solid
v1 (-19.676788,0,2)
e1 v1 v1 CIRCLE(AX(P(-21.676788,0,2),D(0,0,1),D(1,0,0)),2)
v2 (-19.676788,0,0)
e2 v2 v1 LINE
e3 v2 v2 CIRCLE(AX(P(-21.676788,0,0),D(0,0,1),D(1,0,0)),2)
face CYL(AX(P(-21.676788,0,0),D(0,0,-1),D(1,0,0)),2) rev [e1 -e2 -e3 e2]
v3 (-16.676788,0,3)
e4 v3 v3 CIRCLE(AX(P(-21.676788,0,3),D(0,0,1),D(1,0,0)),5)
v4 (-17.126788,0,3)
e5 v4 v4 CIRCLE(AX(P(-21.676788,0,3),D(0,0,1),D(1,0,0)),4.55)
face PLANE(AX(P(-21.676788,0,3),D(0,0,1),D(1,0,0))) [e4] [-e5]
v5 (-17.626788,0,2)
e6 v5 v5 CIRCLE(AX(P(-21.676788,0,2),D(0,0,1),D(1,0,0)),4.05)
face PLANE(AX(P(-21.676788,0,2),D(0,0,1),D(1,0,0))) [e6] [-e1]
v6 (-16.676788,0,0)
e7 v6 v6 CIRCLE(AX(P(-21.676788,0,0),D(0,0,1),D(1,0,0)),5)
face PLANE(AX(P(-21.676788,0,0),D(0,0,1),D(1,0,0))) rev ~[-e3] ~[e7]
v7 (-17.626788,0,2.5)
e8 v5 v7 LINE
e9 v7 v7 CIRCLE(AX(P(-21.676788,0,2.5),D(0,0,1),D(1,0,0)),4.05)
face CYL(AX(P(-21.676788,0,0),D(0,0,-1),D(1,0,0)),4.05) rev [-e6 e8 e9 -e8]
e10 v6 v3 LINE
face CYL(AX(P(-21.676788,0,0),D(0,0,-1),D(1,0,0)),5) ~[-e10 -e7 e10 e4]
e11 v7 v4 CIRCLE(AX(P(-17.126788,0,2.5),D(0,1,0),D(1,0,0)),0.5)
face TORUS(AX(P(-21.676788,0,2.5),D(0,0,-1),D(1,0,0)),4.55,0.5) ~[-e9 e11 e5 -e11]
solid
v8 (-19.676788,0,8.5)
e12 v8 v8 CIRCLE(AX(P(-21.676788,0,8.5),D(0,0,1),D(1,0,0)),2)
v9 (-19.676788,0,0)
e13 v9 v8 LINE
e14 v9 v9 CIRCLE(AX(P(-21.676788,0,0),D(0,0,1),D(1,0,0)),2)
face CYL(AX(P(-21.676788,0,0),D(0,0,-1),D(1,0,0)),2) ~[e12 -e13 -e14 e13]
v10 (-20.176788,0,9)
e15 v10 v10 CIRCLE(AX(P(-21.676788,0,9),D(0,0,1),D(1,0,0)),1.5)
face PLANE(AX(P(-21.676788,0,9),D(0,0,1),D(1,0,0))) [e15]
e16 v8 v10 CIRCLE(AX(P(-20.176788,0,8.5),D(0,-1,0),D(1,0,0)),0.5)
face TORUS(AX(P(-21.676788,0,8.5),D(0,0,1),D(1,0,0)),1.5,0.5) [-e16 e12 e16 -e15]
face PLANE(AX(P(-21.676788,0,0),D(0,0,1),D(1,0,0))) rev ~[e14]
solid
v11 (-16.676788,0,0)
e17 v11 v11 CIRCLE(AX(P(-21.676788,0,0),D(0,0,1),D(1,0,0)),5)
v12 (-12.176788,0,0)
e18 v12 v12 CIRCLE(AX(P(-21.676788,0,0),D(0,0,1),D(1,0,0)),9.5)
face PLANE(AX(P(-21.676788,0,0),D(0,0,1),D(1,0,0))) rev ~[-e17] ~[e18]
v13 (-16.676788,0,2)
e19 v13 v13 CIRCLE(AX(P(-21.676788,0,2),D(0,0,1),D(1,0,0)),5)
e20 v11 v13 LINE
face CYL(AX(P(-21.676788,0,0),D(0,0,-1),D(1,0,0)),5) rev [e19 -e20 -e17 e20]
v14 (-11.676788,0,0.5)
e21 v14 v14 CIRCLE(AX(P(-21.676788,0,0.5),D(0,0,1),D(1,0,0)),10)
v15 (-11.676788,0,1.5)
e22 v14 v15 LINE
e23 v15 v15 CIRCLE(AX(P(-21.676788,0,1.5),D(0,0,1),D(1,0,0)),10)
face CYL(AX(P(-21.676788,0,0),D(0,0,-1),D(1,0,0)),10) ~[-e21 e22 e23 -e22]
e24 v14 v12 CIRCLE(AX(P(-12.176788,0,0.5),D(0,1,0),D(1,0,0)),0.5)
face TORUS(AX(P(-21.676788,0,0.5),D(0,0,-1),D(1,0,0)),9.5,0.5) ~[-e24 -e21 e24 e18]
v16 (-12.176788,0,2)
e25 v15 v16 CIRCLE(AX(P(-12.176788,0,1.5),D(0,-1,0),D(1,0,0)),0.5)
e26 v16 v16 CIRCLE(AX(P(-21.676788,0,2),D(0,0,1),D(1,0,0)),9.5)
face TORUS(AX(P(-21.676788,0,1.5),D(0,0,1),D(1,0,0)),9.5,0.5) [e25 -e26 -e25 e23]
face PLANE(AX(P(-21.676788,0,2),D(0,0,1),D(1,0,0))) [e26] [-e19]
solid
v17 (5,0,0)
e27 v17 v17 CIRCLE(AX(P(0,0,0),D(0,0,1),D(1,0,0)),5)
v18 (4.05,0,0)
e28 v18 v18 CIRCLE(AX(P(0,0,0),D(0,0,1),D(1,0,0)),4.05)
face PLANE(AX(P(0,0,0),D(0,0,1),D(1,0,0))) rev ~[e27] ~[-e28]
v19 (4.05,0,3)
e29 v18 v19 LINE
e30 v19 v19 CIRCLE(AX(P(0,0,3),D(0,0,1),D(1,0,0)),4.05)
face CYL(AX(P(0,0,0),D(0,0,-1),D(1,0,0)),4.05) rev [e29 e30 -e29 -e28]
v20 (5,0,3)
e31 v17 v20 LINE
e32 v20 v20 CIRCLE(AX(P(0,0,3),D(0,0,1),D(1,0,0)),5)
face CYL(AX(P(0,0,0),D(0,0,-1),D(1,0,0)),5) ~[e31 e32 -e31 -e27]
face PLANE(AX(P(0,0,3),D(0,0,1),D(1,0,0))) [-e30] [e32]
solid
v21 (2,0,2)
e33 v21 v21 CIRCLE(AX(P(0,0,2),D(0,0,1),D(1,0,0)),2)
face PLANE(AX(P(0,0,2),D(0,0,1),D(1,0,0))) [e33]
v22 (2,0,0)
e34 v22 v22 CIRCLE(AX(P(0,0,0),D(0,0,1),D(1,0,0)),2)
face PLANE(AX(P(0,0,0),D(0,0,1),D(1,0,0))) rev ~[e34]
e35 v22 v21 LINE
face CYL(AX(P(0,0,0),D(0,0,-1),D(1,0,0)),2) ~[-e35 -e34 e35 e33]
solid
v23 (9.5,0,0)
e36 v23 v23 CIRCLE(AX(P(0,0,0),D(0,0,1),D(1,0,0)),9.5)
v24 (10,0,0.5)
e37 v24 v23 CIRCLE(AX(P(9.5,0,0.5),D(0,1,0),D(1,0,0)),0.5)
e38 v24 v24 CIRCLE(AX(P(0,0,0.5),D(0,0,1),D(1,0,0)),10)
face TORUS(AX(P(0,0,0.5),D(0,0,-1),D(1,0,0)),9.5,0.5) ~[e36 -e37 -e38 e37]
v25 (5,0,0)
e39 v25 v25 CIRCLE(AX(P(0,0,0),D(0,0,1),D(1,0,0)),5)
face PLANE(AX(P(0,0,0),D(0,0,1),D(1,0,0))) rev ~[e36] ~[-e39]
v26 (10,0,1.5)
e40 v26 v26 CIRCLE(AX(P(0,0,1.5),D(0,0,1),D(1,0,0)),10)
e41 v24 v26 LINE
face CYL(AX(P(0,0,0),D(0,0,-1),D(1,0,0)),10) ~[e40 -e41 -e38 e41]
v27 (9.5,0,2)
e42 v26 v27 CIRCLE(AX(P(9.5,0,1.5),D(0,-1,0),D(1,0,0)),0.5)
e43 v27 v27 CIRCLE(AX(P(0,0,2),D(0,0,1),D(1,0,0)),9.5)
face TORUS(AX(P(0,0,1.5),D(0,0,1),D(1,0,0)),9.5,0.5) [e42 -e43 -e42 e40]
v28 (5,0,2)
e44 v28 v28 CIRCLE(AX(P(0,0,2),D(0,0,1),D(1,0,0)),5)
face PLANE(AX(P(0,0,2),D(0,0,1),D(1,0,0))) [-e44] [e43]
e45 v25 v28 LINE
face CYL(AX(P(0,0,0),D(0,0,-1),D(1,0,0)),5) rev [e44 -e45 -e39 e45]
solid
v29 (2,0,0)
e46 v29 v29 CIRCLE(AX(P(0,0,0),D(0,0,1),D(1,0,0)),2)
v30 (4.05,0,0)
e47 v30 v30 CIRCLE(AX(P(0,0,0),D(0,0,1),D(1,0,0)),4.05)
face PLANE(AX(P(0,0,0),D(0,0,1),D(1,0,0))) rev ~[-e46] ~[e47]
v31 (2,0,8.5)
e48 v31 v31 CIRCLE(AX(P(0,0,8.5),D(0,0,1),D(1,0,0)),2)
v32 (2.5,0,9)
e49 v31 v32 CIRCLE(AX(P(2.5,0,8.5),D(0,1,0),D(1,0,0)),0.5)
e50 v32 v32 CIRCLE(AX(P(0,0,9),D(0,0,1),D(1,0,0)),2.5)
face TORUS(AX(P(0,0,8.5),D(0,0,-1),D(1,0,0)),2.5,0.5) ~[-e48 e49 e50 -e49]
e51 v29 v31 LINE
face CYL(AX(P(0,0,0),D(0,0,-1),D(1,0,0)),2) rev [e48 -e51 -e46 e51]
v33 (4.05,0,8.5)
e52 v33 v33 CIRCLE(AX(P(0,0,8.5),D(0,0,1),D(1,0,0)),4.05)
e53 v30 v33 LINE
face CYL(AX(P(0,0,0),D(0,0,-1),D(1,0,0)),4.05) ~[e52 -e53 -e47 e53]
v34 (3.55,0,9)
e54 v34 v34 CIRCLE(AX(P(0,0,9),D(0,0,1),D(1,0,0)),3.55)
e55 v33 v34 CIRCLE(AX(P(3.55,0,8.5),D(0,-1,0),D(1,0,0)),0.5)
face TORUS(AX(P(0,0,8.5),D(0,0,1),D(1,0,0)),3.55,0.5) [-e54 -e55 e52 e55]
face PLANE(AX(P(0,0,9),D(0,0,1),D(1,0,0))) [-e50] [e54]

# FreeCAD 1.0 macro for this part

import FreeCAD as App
import Part
import Sketcher

V = App.Vector


def edges_at(feature, points):
    """Names of the edges that pass closest to the given points."""
    edges = feature.Shape.Edges
    near = lambda p: min(range(len(edges)), key=lambda i: edges[i].distToShape(Part.Vertex(*p))[0])
    return sorted({f"Edge{near(p) + 1}" for p in points})

doc = App.newDocument("Part")
body = doc.addObject("PartDesign::Body", "Body")
body.AllowCompound = True

# Sketch on XY plane
sketch1 = body.newObject("Sketcher::SketchObject", "Sketch")
sketch1.AttachmentSupport = (doc.getObject("XY_Plane"), [""])
sketch1.MapMode = "FlatFace"
sketch1.addGeometry([
    Part.Circle(V(-21.676788, 0, 0), V(0, 0, 1), 10),
    Part.Circle(V(-21.676788, 0, 0), V(0, 0, 1), 5),
    Part.Circle(V(0, 0, 0), V(0, 0, 1), 10),
    Part.Circle(V(0, 0, 0), V(0, 0, 1), 5),
], False)
sketch1.addConstraint([
    Sketcher.Constraint("Coincident", 2, 3, -1, 1),
    Sketcher.Constraint("Coincident", 3, 3, -1, 1),
    Sketcher.Constraint("Coincident", 1, 3, 0, 3),
    Sketcher.Constraint("Equal", 0, 2),
    Sketcher.Constraint("Equal", 1, 3),
    Sketcher.Constraint("PointOnObject", 0, 3, -1),
    Sketcher.Constraint("Diameter", 0, 20.0),
    Sketcher.Constraint("Diameter", 1, 10.0),
    Sketcher.Constraint("DistanceX", 0, 3, -1, 1, 21.676788),
])
pad1 = body.newObject("PartDesign::Pad", "Pad")
pad1.Profile = sketch1
pad1.Length = 2
doc.recompute()

fillet = body.newObject("PartDesign::Fillet", "Fillet")
fillet.Base = (pad1, edges_at(pad1, [
    (-31.677, 0, 2),
    (-10, 0, 2),
    (-10, 0, 0),
    (-31.677, 0, 0),
]))
fillet.Radius = 0.5
body2 = doc.addObject("PartDesign::Body", "Body001")
body2.AllowCompound = True

# Sketch on XY plane
sketch2 = body2.newObject("Sketcher::SketchObject", "Sketch001")
sketch2.AttachmentSupport = (doc.getObject("XY_Plane001"), [""])
sketch2.MapMode = "FlatFace"
sketch2.addGeometry([
    Part.Circle(V(0, 0, 0), V(0, 0, 1), 5),
    Part.Circle(V(0, 0, 0), V(0, 0, 1), 4.05),
    Part.Circle(V(-21.676788, 0, 0), V(0, 0, 1), 5),
    Part.Circle(V(-21.676788, 0, 0), V(0, 0, 1), 4.05),
], False)
sketch2.addConstraint([
    Sketcher.Constraint("Coincident", 0, 3, -1, 1),
    Sketcher.Constraint("Coincident", 1, 3, -1, 1),
    Sketcher.Constraint("Coincident", 3, 3, 2, 3),
    Sketcher.Constraint("Equal", 0, 2),
    Sketcher.Constraint("Equal", 1, 3),
    Sketcher.Constraint("PointOnObject", 2, 3, -1),
    Sketcher.Constraint("Diameter", 0, 10.0),
    Sketcher.Constraint("Diameter", 1, 8.1),
    Sketcher.Constraint("DistanceX", 2, 3, -1, 1, 21.676788),
])
pad2 = body2.newObject("PartDesign::Pad", "Pad001")
pad2.Profile = sketch2
pad2.Length = 3

# Sketch on XY plane
sketch3 = body2.newObject("Sketcher::SketchObject", "Sketch002")
sketch3.AttachmentSupport = (doc.getObject("XY_Plane001"), [""])
sketch3.MapMode = "FlatFace"
sketch3.addGeometry([
    Part.Circle(V(-21.676788, 0, 0), V(0, 0, 1), 4.05),
    Part.Circle(V(-21.676788, 0, 0), V(0, 0, 1), 2),
    Part.Circle(V(0, 0, 0), V(0, 0, 1), 2),
], False)
sketch3.addConstraint([
    Sketcher.Constraint("Coincident", 2, 3, -1, 1),
    Sketcher.Constraint("Coincident", 1, 3, 0, 3),
    Sketcher.Constraint("Equal", 1, 2),
    Sketcher.Constraint("PointOnObject", 0, 3, -1),
    Sketcher.Constraint("Diameter", 1, 4.0),
    Sketcher.Constraint("Diameter", 0, 8.1),
    Sketcher.Constraint("DistanceX", 0, 3, -1, 1, 21.676788),
])
pad3 = body2.newObject("PartDesign::Pad", "Pad002")
pad3.Profile = sketch3
pad3.Length = 2
doc.recompute()

fillet2 = body2.newObject("PartDesign::Fillet", "Fillet001")
fillet2.Base = (pad3, edges_at(pad3, [(-25.727, 0, 3)]))
fillet2.Radius = 0.5
body3 = doc.addObject("PartDesign::Body", "Body002")
body3.AllowCompound = True

# Sketch on XY plane
sketch4 = body3.newObject("Sketcher::SketchObject", "Sketch003")
sketch4.AttachmentSupport = (doc.getObject("XY_Plane002"), [""])
sketch4.MapMode = "FlatFace"
sketch4.addGeometry([
    Part.Circle(V(0, 0, 0), V(0, 0, 1), 4.05),
    Part.Circle(V(0, 0, 0), V(0, 0, 1), 2),
    Part.Circle(V(-21.676788, 0, 0), V(0, 0, 1), 2),
], False)
sketch4.addConstraint([
    Sketcher.Constraint("Coincident", 0, 3, -1, 1),
    Sketcher.Constraint("Coincident", 1, 3, -1, 1),
    Sketcher.Constraint("Equal", 1, 2),
    Sketcher.Constraint("PointOnObject", 2, 3, -1),
    Sketcher.Constraint("Diameter", 1, 4.0),
    Sketcher.Constraint("Diameter", 0, 8.1),
    Sketcher.Constraint("DistanceX", 2, 3, -1, 1, 21.676788),
])
pad4 = body3.newObject("PartDesign::Pad", "Pad003")
pad4.Profile = sketch4
pad4.Length = 9
doc.recompute()

fillet3 = body3.newObject("PartDesign::Fillet", "Fillet002")
fillet3.Base = (pad4, edges_at(pad4, [(-2, 0, 9), (-23.677, 0, 9), (-4.05, 0, 9)]))
fillet3.Radius = 0.5

doc.recompute()
